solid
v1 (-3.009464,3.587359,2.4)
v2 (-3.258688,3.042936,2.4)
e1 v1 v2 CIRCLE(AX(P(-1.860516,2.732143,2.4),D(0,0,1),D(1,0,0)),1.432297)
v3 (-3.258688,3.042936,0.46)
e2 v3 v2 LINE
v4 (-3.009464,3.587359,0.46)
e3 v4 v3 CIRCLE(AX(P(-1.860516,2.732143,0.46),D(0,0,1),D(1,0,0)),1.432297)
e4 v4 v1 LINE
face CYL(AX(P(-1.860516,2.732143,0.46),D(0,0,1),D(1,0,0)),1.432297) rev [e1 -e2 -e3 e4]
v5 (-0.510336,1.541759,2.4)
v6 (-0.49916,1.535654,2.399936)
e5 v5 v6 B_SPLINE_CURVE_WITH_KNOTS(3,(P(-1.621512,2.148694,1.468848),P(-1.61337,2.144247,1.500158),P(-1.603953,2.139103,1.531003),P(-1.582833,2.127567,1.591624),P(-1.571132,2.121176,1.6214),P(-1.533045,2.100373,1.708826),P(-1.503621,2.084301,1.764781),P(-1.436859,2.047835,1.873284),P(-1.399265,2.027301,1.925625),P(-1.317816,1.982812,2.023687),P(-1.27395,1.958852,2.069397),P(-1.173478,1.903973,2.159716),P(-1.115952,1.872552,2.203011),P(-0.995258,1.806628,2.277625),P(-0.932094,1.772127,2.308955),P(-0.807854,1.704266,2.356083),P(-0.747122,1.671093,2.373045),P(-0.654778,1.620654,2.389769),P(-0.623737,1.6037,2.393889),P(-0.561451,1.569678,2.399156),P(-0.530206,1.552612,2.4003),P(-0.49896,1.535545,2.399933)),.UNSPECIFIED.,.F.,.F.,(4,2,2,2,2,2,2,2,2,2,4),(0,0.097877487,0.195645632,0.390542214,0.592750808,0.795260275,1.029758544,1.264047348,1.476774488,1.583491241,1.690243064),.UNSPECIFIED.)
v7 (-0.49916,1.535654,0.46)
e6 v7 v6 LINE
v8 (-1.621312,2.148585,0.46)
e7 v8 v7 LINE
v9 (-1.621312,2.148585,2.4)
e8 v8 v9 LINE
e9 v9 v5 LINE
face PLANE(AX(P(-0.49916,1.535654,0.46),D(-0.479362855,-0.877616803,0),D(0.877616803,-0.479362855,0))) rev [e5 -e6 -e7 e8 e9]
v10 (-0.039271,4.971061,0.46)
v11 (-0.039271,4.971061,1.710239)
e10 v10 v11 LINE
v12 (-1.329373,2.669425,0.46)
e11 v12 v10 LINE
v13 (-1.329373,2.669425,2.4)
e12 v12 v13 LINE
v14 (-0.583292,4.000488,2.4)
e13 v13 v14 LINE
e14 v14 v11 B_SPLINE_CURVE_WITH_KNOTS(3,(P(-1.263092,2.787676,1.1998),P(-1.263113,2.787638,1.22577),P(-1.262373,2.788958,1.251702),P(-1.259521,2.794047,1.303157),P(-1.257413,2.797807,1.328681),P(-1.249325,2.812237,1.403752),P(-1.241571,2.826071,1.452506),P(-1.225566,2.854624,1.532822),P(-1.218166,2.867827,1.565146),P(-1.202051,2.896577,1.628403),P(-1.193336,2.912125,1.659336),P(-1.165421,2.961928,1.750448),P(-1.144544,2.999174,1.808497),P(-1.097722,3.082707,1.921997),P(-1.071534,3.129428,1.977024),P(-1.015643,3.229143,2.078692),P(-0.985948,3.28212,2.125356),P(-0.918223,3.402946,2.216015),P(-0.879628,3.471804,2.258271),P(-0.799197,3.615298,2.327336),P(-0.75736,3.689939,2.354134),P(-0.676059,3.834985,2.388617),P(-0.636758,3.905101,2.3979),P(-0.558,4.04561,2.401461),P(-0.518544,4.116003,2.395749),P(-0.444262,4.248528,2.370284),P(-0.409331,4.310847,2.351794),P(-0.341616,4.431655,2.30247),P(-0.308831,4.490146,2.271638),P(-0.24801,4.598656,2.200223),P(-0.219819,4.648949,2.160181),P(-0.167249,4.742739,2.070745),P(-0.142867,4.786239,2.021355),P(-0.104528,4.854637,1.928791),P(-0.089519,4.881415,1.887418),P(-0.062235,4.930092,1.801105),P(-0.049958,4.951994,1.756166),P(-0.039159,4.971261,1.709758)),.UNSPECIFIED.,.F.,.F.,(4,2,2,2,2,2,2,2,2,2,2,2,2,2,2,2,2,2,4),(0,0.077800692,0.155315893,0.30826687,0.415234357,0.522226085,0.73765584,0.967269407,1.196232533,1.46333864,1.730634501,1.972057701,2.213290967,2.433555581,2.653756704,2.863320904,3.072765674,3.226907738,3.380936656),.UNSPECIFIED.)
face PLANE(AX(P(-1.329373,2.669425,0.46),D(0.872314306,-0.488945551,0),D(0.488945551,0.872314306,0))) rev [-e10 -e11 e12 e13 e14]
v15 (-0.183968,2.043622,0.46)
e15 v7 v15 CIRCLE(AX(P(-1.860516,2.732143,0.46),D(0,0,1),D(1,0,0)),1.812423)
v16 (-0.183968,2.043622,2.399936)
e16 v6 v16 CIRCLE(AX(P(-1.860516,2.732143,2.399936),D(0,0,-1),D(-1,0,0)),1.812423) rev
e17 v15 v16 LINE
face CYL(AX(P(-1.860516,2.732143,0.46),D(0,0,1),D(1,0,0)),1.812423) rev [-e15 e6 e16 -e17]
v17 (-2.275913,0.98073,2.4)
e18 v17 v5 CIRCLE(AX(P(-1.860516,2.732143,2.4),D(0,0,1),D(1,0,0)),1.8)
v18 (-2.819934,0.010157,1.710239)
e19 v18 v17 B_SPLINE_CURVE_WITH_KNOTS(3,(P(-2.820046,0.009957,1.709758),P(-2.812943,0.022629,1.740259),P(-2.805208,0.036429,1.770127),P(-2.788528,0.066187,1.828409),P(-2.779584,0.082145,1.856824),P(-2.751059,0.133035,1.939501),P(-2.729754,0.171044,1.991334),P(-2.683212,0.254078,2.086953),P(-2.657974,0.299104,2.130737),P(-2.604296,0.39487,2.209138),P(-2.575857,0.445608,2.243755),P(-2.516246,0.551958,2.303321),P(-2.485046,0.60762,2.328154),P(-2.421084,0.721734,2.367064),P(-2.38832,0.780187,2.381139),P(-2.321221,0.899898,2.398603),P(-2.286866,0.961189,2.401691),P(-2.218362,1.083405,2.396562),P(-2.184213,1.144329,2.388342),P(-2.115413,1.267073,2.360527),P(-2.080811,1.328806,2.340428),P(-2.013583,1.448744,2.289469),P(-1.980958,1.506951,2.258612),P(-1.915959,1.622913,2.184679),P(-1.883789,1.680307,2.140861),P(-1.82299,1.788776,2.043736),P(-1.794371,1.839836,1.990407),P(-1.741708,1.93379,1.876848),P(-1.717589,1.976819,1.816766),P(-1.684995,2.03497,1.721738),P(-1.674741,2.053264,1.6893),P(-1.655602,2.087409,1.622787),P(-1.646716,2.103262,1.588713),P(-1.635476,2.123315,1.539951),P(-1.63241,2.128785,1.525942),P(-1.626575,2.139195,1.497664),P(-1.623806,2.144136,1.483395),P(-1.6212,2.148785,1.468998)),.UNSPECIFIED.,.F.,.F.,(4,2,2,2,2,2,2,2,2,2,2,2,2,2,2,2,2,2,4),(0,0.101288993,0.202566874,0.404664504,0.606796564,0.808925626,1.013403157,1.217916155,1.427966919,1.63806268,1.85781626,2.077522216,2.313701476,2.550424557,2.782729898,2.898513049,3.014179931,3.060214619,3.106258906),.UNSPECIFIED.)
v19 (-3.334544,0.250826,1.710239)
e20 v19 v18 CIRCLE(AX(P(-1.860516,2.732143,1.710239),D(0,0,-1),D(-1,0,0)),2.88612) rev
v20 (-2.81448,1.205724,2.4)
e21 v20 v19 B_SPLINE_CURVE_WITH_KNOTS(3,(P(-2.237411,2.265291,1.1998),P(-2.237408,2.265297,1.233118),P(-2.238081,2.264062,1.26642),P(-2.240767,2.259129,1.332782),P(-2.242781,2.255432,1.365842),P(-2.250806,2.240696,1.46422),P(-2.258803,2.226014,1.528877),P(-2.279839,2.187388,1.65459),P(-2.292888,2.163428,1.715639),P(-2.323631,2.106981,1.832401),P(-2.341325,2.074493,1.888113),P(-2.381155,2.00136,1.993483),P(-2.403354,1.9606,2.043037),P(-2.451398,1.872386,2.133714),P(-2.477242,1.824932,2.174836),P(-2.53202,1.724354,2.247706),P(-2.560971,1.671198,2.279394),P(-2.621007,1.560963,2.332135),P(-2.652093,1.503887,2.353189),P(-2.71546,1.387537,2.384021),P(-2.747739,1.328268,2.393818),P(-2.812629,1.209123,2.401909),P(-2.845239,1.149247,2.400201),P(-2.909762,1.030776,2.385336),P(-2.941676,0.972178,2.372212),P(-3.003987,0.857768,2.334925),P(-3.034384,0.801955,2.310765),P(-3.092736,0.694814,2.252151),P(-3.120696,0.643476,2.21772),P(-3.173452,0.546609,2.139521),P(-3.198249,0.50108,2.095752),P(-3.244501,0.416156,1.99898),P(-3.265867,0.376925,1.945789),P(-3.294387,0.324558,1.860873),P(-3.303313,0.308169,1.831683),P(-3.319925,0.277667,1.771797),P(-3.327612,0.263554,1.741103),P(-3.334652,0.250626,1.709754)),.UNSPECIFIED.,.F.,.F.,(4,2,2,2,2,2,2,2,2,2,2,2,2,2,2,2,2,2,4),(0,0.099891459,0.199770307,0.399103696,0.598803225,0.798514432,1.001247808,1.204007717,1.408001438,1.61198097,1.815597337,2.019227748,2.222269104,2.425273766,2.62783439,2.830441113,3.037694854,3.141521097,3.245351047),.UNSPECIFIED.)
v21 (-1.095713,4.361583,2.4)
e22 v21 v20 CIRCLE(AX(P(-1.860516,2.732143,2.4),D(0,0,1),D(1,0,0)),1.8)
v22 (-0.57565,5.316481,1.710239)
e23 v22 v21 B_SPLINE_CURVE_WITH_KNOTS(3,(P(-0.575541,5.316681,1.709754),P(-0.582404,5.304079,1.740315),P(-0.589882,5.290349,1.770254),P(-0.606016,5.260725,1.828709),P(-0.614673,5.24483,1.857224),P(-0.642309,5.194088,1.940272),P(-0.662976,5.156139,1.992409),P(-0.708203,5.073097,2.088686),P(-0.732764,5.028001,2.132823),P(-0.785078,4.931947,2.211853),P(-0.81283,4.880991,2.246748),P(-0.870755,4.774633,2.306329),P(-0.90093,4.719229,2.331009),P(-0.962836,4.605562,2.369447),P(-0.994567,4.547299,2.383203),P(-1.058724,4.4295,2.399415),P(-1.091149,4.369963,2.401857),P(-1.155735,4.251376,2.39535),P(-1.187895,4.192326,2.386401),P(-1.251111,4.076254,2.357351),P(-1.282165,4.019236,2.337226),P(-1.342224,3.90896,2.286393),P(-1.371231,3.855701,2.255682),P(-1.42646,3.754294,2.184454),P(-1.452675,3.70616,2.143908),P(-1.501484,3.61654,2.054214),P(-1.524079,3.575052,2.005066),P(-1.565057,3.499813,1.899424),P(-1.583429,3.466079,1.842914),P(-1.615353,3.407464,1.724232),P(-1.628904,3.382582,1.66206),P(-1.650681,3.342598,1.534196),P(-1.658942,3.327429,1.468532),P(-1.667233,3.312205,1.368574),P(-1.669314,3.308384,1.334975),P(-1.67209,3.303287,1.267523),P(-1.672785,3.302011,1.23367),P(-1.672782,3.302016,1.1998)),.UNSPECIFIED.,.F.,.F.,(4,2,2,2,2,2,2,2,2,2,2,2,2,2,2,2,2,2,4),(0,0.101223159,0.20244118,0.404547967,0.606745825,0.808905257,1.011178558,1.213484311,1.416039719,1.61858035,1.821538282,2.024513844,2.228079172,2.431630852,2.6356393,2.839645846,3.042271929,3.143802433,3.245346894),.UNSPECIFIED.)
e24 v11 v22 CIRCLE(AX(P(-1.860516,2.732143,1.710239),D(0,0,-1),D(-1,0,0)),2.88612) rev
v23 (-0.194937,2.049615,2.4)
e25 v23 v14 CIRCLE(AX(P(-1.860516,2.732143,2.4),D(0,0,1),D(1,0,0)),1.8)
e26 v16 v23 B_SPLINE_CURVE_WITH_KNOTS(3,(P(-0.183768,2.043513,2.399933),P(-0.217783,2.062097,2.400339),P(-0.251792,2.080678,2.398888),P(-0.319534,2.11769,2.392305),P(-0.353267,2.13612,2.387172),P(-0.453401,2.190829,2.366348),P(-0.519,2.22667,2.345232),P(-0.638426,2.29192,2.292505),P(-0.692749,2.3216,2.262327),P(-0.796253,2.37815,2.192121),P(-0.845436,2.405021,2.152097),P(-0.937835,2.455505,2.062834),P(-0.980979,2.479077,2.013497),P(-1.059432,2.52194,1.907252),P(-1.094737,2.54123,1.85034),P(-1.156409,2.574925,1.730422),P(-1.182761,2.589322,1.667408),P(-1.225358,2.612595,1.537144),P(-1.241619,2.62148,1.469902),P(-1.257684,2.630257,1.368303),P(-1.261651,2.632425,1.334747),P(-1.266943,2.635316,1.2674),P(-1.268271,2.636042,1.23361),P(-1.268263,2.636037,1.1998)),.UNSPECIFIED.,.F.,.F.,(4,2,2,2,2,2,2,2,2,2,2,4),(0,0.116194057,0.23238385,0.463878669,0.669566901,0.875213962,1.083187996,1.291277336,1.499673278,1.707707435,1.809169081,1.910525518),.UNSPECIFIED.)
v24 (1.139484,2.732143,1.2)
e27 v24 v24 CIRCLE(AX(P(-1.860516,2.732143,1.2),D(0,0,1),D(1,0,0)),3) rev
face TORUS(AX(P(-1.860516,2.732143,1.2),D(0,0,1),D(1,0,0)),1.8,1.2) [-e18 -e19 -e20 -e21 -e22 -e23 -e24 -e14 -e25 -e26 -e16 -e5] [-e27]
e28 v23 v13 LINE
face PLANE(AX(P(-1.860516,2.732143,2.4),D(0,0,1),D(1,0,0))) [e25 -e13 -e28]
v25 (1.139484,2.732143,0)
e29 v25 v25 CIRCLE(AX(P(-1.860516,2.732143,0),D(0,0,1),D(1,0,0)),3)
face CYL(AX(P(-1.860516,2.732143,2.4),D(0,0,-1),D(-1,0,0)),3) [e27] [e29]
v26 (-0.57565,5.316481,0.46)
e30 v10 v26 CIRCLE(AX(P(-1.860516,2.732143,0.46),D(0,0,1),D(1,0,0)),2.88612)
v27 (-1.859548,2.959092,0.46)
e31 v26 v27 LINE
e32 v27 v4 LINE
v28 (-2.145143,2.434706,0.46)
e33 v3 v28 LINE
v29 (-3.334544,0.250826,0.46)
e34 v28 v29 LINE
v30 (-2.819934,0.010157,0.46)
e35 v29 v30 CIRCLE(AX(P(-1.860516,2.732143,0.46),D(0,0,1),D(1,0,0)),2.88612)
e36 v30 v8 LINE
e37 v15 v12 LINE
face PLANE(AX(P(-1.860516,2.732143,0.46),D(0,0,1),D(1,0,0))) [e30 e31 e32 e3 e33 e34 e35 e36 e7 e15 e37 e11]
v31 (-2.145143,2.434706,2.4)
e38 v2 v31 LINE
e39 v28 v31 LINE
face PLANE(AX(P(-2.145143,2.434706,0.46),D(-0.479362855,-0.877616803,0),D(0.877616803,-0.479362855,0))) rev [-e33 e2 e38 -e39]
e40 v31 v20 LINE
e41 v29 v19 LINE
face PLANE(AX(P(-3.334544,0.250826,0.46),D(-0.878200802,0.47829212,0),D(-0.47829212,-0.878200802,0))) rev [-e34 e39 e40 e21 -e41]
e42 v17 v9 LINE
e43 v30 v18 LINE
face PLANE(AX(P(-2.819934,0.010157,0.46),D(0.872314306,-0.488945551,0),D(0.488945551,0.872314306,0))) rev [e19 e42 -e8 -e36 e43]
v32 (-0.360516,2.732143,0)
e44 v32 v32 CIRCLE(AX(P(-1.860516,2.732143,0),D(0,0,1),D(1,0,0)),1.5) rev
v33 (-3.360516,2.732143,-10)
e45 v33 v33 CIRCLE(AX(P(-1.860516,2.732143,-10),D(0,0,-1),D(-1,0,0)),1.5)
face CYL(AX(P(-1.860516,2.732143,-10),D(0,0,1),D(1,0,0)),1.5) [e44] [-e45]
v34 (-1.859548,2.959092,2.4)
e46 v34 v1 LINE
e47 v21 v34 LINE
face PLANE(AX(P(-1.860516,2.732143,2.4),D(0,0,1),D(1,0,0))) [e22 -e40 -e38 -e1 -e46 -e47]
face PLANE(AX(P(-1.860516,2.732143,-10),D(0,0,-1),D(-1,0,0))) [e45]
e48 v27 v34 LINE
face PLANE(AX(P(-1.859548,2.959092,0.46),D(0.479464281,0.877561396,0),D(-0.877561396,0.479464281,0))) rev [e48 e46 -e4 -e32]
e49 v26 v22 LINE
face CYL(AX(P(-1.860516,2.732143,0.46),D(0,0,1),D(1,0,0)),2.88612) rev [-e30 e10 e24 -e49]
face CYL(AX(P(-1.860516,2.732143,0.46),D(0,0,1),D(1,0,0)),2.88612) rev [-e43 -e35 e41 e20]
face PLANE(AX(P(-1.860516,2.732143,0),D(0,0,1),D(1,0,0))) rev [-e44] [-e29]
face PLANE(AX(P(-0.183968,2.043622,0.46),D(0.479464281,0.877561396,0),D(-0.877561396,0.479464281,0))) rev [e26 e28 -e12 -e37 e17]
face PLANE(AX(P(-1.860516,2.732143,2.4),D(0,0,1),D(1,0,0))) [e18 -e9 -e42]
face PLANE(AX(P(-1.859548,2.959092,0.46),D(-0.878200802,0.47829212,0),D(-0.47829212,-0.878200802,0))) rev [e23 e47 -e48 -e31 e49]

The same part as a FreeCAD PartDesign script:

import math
import FreeCAD as App
import Part
import Sketcher
from FreeCAD import Vector


def edges_at(feature, points):
    """Names of the edges that pass closest to the given points."""
    edges = feature.Shape.Edges
    near = lambda p: min(range(len(edges)), key=lambda i: edges[i].distToShape(Part.Vertex(*p))[0])
    return sorted({f"Edge{near(p) + 1}" for p in points})

doc = App.newDocument("Part")
body = doc.addObject("PartDesign::Body", "Body")

sketch1 = doc.addObject("Sketcher::SketchObject", "Sketch")
body.addObject(sketch1)
sketch1.AttachmentSupport = (doc.XY_Plane, [""])
sketch1.MapMode = "FlatFace"
sketch1.addGeometry(Part.Circle(Vector(-1.9, 2.7, 0), Vector(0, 0, 1), 3), False)
sketch1.addConstraint([
    Sketcher.Constraint("Diameter", 0, 6.0),
    Sketcher.Constraint("DistanceX", 0, 3, -1, 1, 1.860516),
    Sketcher.Constraint("DistanceY", -1, 1, 0, 3, 2.732143),
])
pad1 = doc.addObject("PartDesign::Pad", "Pad")
body.addObject(pad1)
pad1.Profile = sketch1
pad1.Length = 2.4

sketch2 = doc.addObject("Sketcher::SketchObject", "Sketch001")
body.addObject(sketch2)
sketch2.AttachmentSupport = (doc.XY_Plane, [""])
sketch2.MapMode = "FlatFace"
sketch2.addGeometry(Part.Circle(Vector(-1.9, 2.7, 0), Vector(0, 0, 1), 1.5), False)
sketch2.addConstraint([
    Sketcher.Constraint("Diameter", 0, 3.0),
    Sketcher.Constraint("DistanceX", 0, 3, -1, 1, 1.860516),
    Sketcher.Constraint("DistanceY", -1, 1, 0, 3, 2.732143),
])
pad2 = doc.addObject("PartDesign::Pad", "Pad001")
body.addObject(pad2)
pad2.Profile = sketch2
pad2.Length = 10
pad2.Reversed = True
doc.recompute()

fillet = doc.addObject("PartDesign::Fillet", "Fillet")
body.addObject(fillet)
fillet.Base = (pad2, edges_at(pad2, [(-4.861, 2.732, 2.4)]))
fillet.Radius = 1.2

sketch3 = doc.addObject("Sketcher::SketchObject", "Sketch002")
body.addObject(sketch3)
sketch3.AttachmentSupport = (doc.XY_Plane, [""])
sketch3.MapMode = "FlatFace"
sketch3.AttachmentOffset = App.Placement(Vector(0, 0, 2.4), App.Rotation())
sketch3.addGeometry([
    Part.LineSegment(Vector(-0.57565, 5.316481, 0), Vector(-1.859548, 2.959092, 0)),
    Part.LineSegment(Vector(-1.859548, 2.959092, 0), Vector(-3.009464, 3.587359, 0)),
    Part.ArcOfCircle(Part.Circle(Vector(-1.860516, 2.732143, 0), Vector(0, 0, 1), 1.432297), math.radians(143.337927), math.radians(167.467762)),
    Part.LineSegment(Vector(-3.258688, 3.042936, 0), Vector(-2.145143, 2.434706, 0)),
    Part.LineSegment(Vector(-2.145143, 2.434706, 0), Vector(-3.334544, 0.250826, 0)),
    Part.ArcOfCircle(Part.Circle(Vector(-1.860516, 2.732143, 0), Vector(0, 0, 1), 2.88612), math.radians(-120.712451), math.radians(-109.416009)),
    Part.LineSegment(Vector(-2.819934, 0.010157, 0), Vector(-1.621312, 2.148585, 0)),
    Part.LineSegment(Vector(-1.621312, 2.148585, 0), Vector(-0.49916, 1.535654, 0)),
    Part.ArcOfCircle(Part.Circle(Vector(-1.860516, 2.732143, 0), Vector(0, 0, 1), 1.812423), math.radians(-41.312055), math.radians(-22.326858)),
    Part.LineSegment(Vector(-0.183968, 2.043622, 0), Vector(-1.329373, 2.669425, 0)),
    Part.LineSegment(Vector(-1.329373, 2.669425, 0), Vector(-0.039271, 4.971061, 0)),
    Part.ArcOfCircle(Part.Circle(Vector(-1.860516, 2.732143, 0), Vector(0, 0, 1), 2.88612), math.radians(50.87341), math.radians(63.564618)),
], False)
sketch3.addConstraint([
    Sketcher.Constraint("Coincident", 0, 2, 1, 1),
    Sketcher.Constraint("Coincident", 1, 2, 2, 1),
    Sketcher.Constraint("Coincident", 2, 2, 3, 1),
    Sketcher.Constraint("Coincident", 3, 2, 4, 1),
    Sketcher.Constraint("Coincident", 4, 2, 5, 1),
    Sketcher.Constraint("Coincident", 5, 2, 6, 1),
    Sketcher.Constraint("Coincident", 6, 2, 7, 1),
    Sketcher.Constraint("Coincident", 7, 2, 8, 1),
    Sketcher.Constraint("Coincident", 8, 2, 9, 1),
    Sketcher.Constraint("Coincident", 9, 2, 10, 1),
    Sketcher.Constraint("Coincident", 10, 2, 11, 1),
    Sketcher.Constraint("Coincident", 11, 2, 0, 1),
    Sketcher.Constraint("Coincident", 5, 3, 2, 3),
    Sketcher.Constraint("Coincident", 8, 3, 2, 3),
    Sketcher.Constraint("Coincident", 11, 3, 2, 3),
    Sketcher.Constraint("Radius", 5, 2.88612),
    Sketcher.Constraint("Radius", 11, 2.88612),
    Sketcher.Constraint("Radius", 2, 1.432297),
    Sketcher.Constraint("Radius", 8, 1.812423),
    Sketcher.Constraint("DistanceX", 4, 2, 3, 2, 1.189401),
    Sketcher.Constraint("DistanceX", 9, 2, 10, 2, 1.290102),
    Sketcher.Constraint("DistanceX", 0, 2, 11, 2, 1.283899),
    Sketcher.Constraint("Distance", 0, 2.68434),
    Sketcher.Constraint("Distance", 3, 1.268828),
    Sketcher.Constraint("Distance", 6, 2.451442),
    Sketcher.Constraint("Distance", 10, 2.638539),
    Sketcher.Constraint("DistanceX", 0, 2, -1, 1, 1.859548),
    Sketcher.Constraint("DistanceY", -1, 1, 0, 2, 2.959092),
    Sketcher.Constraint("DistanceY", -1, 1, 1, 2, 3.587359),
    Sketcher.Constraint("DistanceX", 7, 2, -1, 1, 0.49916),
    Sketcher.Constraint("DistanceY", -1, 1, 8, 2, 2.043622),
    Sketcher.Constraint("DistanceX", 10, 2, -1, 1, 0.039271),
    Sketcher.Constraint("DistanceY", -1, 1, 10, 2, 4.971061),
    Sketcher.Constraint("DistanceX", 2, 2, 0, 2, 1.39914),
    Sketcher.Constraint("DistanceY", 4, 2, 3, 2, 2.18388),
    Sketcher.Constraint("DistanceX", 4, 2, 5, 2, 0.51461),
    Sketcher.Constraint("DistanceX", 3, 2, 6, 2, 0.523831),
])
pocket1 = doc.addObject("PartDesign::Pocket", "Pocket")
body.addObject(pocket1)
pocket1.Profile = sketch3
pocket1.Length = 1.94

doc.recompute()
